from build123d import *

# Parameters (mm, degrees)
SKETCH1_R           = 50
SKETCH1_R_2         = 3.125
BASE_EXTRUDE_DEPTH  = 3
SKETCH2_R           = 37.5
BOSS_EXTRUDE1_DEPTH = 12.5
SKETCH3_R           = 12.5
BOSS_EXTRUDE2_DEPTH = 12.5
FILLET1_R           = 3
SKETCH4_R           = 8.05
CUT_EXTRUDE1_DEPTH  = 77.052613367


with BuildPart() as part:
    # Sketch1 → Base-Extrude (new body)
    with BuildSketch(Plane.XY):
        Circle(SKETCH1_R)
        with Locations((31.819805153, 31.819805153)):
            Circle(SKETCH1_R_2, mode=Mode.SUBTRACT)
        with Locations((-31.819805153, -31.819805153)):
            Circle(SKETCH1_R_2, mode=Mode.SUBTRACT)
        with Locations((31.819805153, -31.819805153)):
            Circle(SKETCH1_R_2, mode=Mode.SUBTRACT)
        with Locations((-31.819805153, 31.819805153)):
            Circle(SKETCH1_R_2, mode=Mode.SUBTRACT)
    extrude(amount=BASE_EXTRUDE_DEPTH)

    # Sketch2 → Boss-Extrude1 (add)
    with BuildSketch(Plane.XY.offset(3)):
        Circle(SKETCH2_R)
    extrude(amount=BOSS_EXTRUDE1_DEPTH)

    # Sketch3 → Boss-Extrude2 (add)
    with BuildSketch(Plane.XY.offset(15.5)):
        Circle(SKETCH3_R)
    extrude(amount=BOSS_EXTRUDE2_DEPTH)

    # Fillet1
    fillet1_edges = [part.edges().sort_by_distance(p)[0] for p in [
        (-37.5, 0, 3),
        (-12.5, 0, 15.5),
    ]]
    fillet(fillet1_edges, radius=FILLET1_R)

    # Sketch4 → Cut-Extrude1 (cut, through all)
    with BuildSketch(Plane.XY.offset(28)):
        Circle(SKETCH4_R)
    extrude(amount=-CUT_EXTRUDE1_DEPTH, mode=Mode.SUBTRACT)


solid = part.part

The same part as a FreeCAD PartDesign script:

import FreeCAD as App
import Part
import Sketcher

V = App.Vector
Q = App.Units.Quantity


def edges_at(feature, points):
    """Names of the edges that pass closest to the given points."""
    edges = feature.Shape.Edges
    near = lambda p: min(range(len(edges)), key=lambda i: edges[i].distToShape(Part.Vertex(*p))[0])
    return sorted({f"Edge{near(p) + 1}" for p in points})

doc = App.newDocument("Part")
body = doc.addObject("PartDesign::Body", "Body")

# Sketch on XY plane
sketch1 = body.newObject("Sketcher::SketchObject", "Sketch")
sketch1.AttachmentSupport = (doc.getObject("XY_Plane"), [""])
sketch1.MapMode = "FlatFace"
sketch1.addGeometry([
    Part.Circle(V(0, 0, 0), V(0, 0, 1), 50),  # 0
    Part.Circle(V(-31.819805, -31.819805, 0), V(0, 0, 1), 3.125),  # 1
    Part.Circle(V(31.819805, -31.819805, 0), V(0, 0, 1), 3.125),  # 2
    Part.Circle(V(-31.819805, 31.819805, 0), V(0, 0, 1), 3.125),  # 3
    Part.Circle(V(31.819805, 31.819805, 0), V(0, 0, 1), 3.125),  # 4
], False)
sketch1.addConstraint([
    Sketcher.Constraint("Coincident", 0, 3, -1, 1),
    Sketcher.Constraint("Equal", 1, 2),
    Sketcher.Constraint("Equal", 2, 3),
    Sketcher.Constraint("Equal", 3, 4),
    Sketcher.Constraint("Symmetric", 2, 3, 3, 3, -1, 1),
    Sketcher.Constraint("Symmetric", 1, 3, 4, 3, -1, 1),
    Sketcher.Constraint("Symmetric", 1, 3, 2, 3, -2),
    Sketcher.Constraint("Diameter", 0, Q("100 mm")),
    Sketcher.Constraint("Diameter", 1, Q("6.25 mm")),
    Sketcher.Constraint("DistanceX", 1, 3, 2, 3, Q("63.63961 mm")),
    Sketcher.Constraint("DistanceY", 1, 3, 3, 3, Q("63.63961 mm")),
])
pad1 = body.newObject("PartDesign::Pad", "Pad")
pad1.Profile = sketch1
pad1.Length = 3

# Sketch on XY plane
sketch2 = body.newObject("Sketcher::SketchObject", "Sketch001")
sketch2.AttachmentSupport = (doc.getObject("XY_Plane"), [""])
sketch2.MapMode = "FlatFace"
sketch2.AttachmentOffset = App.Placement(V(0, 0, 3), App.Rotation())
sketch2.addGeometry(Part.Circle(V(0, 0, 0), V(0, 0, 1), 37.5), False)
sketch2.addConstraint([
    Sketcher.Constraint("Coincident", 0, 3, -1, 1),
    Sketcher.Constraint("Diameter", 0, Q("75 mm")),
])
pad2 = body.newObject("PartDesign::Pad", "Pad001")
pad2.Profile = sketch2
pad2.Length = 12.5

# Sketch on XY plane
sketch3 = body.newObject("Sketcher::SketchObject", "Sketch002")
sketch3.AttachmentSupport = (doc.getObject("XY_Plane"), [""])
sketch3.MapMode = "FlatFace"
sketch3.AttachmentOffset = App.Placement(V(0, 0, 15.5), App.Rotation())
sketch3.addGeometry(Part.Circle(V(0, 0, 0), V(0, 0, 1), 12.5), False)
sketch3.addConstraint([
    Sketcher.Constraint("Coincident", 0, 3, -1, 1),
    Sketcher.Constraint("Diameter", 0, Q("25 mm")),
])
pad3 = body.newObject("PartDesign::Pad", "Pad002")
pad3.Profile = sketch3
pad3.Length = 12.5
doc.recompute()

fillet = body.newObject("PartDesign::Fillet", "Fillet")
fillet.Base = (pad3, edges_at(pad3, [(-37.5, 0, 3), (-12.5, 0, 15.5)]))
fillet.Radius = 3

# Sketch on XY plane
sketch4 = body.newObject("Sketcher::SketchObject", "Sketch003")
sketch4.AttachmentSupport = (doc.getObject("XY_Plane"), [""])
sketch4.MapMode = "FlatFace"
sketch4.AttachmentOffset = App.Placement(V(0, 0, 28), App.Rotation())
sketch4.addGeometry(Part.Circle(V(0, 0, 0), V(0, 0, 1), 8.05), False)
sketch4.addConstraint([
    Sketcher.Constraint("Coincident", 0, 3, -1, 1),
    Sketcher.Constraint("Diameter", 0, Q("16.1 mm")),
])
pocket1 = body.newObject("PartDesign::Pocket", "Pocket")
pocket1.Profile = sketch4
pocket1.Type = "ThroughAll"

doc.recompute()
